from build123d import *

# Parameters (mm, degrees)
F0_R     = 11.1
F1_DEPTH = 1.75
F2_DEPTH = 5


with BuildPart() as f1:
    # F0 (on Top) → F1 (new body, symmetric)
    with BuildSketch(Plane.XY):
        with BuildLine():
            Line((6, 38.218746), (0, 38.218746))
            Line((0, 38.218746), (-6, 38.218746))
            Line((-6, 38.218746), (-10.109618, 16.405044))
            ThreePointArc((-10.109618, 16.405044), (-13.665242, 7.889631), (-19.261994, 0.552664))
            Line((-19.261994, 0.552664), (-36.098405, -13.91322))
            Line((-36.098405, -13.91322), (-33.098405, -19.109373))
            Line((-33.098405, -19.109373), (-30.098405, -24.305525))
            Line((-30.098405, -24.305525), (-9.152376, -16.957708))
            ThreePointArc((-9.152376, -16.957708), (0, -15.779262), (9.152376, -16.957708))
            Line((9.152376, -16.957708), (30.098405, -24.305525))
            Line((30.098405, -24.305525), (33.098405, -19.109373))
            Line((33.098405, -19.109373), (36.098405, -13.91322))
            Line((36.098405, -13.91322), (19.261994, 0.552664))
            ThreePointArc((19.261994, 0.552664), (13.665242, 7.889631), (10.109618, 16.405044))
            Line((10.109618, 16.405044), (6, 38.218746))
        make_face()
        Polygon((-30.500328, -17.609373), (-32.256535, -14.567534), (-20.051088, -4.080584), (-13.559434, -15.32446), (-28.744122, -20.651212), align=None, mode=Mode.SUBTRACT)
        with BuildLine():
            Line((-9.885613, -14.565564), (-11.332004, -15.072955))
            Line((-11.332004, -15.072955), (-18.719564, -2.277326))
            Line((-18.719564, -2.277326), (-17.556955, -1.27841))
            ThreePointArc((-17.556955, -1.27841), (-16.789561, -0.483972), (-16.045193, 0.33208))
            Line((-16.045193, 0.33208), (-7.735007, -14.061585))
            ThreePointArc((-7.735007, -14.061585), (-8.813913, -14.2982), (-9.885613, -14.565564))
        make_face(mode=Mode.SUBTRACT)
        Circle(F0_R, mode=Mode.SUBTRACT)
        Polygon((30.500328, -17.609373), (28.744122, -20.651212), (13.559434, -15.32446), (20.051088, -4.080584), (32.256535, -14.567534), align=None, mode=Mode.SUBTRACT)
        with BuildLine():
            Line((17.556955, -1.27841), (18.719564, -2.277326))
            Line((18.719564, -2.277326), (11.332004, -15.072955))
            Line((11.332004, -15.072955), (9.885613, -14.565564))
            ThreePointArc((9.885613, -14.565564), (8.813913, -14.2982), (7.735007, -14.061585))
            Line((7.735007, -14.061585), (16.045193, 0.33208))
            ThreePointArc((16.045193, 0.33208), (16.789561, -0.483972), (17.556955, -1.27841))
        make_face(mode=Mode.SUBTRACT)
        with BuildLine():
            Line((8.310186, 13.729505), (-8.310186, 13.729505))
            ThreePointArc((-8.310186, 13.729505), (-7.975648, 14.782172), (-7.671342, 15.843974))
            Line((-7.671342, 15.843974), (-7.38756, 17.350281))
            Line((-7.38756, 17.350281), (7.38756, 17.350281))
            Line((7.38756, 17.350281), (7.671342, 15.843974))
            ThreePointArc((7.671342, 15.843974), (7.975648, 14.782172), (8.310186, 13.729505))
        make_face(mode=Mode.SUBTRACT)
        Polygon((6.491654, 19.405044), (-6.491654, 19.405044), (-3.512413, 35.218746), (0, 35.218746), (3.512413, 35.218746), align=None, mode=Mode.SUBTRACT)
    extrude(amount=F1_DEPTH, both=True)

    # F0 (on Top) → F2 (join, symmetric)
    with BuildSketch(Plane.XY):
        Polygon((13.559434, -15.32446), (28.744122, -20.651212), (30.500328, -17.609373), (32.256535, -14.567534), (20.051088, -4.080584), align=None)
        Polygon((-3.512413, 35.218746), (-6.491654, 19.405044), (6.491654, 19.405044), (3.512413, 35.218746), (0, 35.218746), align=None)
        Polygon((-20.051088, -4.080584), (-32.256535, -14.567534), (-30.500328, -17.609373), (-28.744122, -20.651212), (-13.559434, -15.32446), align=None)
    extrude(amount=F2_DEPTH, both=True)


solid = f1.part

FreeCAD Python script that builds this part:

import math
import FreeCAD as App
import Part
import Sketcher

V = App.Vector
Q = App.Units.Quantity


def add_polygon(sketch, points):
    """Adds a closed chain of lines whose ends are joined by coincident constraints."""
    first, n = sketch.GeometryCount, len(points)
    for a, b in zip(points, points[1:] + points[:1]):
        sketch.addGeometry(Part.LineSegment(App.Vector(*a, 0), App.Vector(*b, 0)), False)
    for i in range(n):
        sketch.addConstraint(Sketcher.Constraint("Coincident", first + i, 2, first + (i + 1) % n, 1))

doc = App.newDocument("Part")
body = doc.addObject("PartDesign::Body", "Body")

sketch1 = body.newObject("Sketcher::SketchObject", "Sketch")
sketch1.AttachmentSupport = (doc.getObject("XY_Plane"), [""])
sketch1.MapMode = "FlatFace"
sketch1.addGeometry(Part.LineSegment(V(6, 38.218746, 0), V(-6, 38.218746, 0)), False)
sketch1.addGeometry(Part.LineSegment(V(-6, 38.218746, 0), V(-10.109618, 16.405044, 0)), False)
sketch1.addGeometry(Part.ArcOfCircle(Part.Circle(V(-44.954821, 25.954678, 0), V(0, 0, 1), 36.130094), math.radians(-44.673897), math.radians(-15.326104)), False)
sketch1.addGeometry(Part.LineSegment(V(-19.261994, 0.552664, 0), V(-36.098405, -13.91322, 0)), False)
sketch1.addGeometry(Part.LineSegment(V(-36.098405, -13.91322, 0), V(-33.098405, -19.109373, 0)), False)
sketch1.addGeometry(Part.LineSegment(V(-33.098405, -19.109373, 0), V(-30.098405, -24.305525, 0)), False)
sketch1.addGeometry(Part.LineSegment(V(-30.098405, -24.305525, 0), V(-9.152376, -16.957708, 0)), False)
sketch1.addGeometry(Part.ArcOfCircle(Part.Circle(V(0, -51.909353, 0), V(0, 0, 1), 36.130091), math.radians(75.326102), math.radians(104.673898)), False)
sketch1.addGeometry(Part.LineSegment(V(9.152376, -16.957708, 0), V(30.098405, -24.305525, 0)), False)
sketch1.addGeometry(Part.LineSegment(V(30.098405, -24.305525, 0), V(33.098405, -19.109373, 0)), False)
sketch1.addGeometry(Part.LineSegment(V(33.098405, -19.109373, 0), V(36.098405, -13.91322, 0)), False)
sketch1.addGeometry(Part.LineSegment(V(36.098405, -13.91322, 0), V(19.261994, 0.552664, 0)), False)
sketch1.addGeometry(Part.ArcOfCircle(Part.Circle(V(44.954821, 25.954678, 0), V(0, 0, 1), 36.130094), math.radians(-164.673896), math.radians(-135.326103)), False)
sketch1.addGeometry(Part.LineSegment(V(10.109618, 16.405044, 0), V(6, 38.218746, 0)), False)
add_polygon(sketch1, [(-28.744122, -20.651212), (-30.500328, -17.609373), (-32.256535, -14.567534), (-20.051088, -4.080584), (-13.559434, -15.32446)])
sketch1.addGeometry(Part.ArcOfCircle(Part.Circle(V(0.000035, -51.909547, 0), V(0, 0, 1), 38.630287), math.radians(101.55056), math.radians(104.827162)), False)
sketch1.addGeometry(Part.LineSegment(V(-9.885613, -14.565564, 0), V(-11.332004, -15.072955, 0)), False)
sketch1.addGeometry(Part.LineSegment(V(-11.332004, -15.072955, 0), V(-18.719564, -2.277326, 0)), False)
sketch1.addGeometry(Part.LineSegment(V(-18.719564, -2.277326, 0), V(-17.556955, -1.27841, 0)), False)
sketch1.addGeometry(Part.ArcOfCircle(Part.Circle(V(-44.955902, 25.955686, 0), V(0, 0, 1), 38.631571), math.radians(-44.827114), math.radians(-41.55062)), False)
sketch1.addGeometry(Part.LineSegment(V(-16.045193, 0.33208, 0), V(-7.735007, -14.061585, 0)), False)
sketch1.addGeometry(Part.ArcOfCircle(Part.Circle(V(44.955902, 25.955686, 0), V(0, 0, 1), 38.631571), math.radians(-138.44938), math.radians(-135.172886)), False)
sketch1.addGeometry(Part.LineSegment(V(17.556955, -1.27841, 0), V(18.719564, -2.277326, 0)), False)
sketch1.addGeometry(Part.LineSegment(V(18.719564, -2.277326, 0), V(11.332004, -15.072955, 0)), False)
sketch1.addGeometry(Part.LineSegment(V(11.332004, -15.072955, 0), V(9.885613, -14.565564, 0)), False)
sketch1.addGeometry(Part.ArcOfCircle(Part.Circle(V(-0.000035, -51.909547, 0), V(0, 0, 1), 38.630287), math.radians(75.172838), math.radians(78.44944)), False)
sketch1.addGeometry(Part.LineSegment(V(7.735007, -14.061585, 0), V(16.045193, 0.33208, 0)), False)
add_polygon(sketch1, [(32.256535, -14.567534), (30.500328, -17.609373), (28.744122, -20.651212), (13.559434, -15.32446), (20.051088, -4.080584)])
sketch1.addGeometry(Part.Circle(V(0, 0, 0), V(0, 0, 1), 11.1), False)
sketch1.addGeometry(Part.ArcOfCircle(Part.Circle(V(44.955104, 25.954766, 0), V(0, 0, 1), 38.63039), math.radians(-164.827168), math.radians(-161.550574)), False)
sketch1.addGeometry(Part.LineSegment(V(8.310186, 13.729505, 0), V(-8.310186, 13.729505, 0)), False)
sketch1.addGeometry(Part.ArcOfCircle(Part.Circle(V(-44.955104, 25.954766, 0), V(0, 0, 1), 38.63039), math.radians(-18.449426), math.radians(-15.172832)), False)
sketch1.addGeometry(Part.LineSegment(V(-7.671342, 15.843974, 0), V(-7.38756, 17.350281, 0)), False)
sketch1.addGeometry(Part.LineSegment(V(-7.38756, 17.350281, 0), V(7.38756, 17.350281, 0)), False)
sketch1.addGeometry(Part.LineSegment(V(7.38756, 17.350281, 0), V(7.671342, 15.843974, 0)), False)
add_polygon(sketch1, [(3.512413, 35.218746), (6.491654, 19.405044), (-6.491654, 19.405044), (-3.512413, 35.218746)])
sketch1.addConstraint(Sketcher.Constraint("Coincident", 0, 2, 1, 1))
sketch1.addConstraint(Sketcher.Constraint("Coincident", 1, 2, 2, 2))
sketch1.addConstraint(Sketcher.Constraint("Coincident", 2, 1, 3, 1))
sketch1.addConstraint(Sketcher.Constraint("Coincident", 3, 2, 4, 1))
sketch1.addConstraint(Sketcher.Constraint("Coincident", 4, 2, 5, 1))
sketch1.addConstraint(Sketcher.Constraint("Coincident", 5, 2, 6, 1))
sketch1.addConstraint(Sketcher.Constraint("Coincident", 6, 2, 7, 2))
sketch1.addConstraint(Sketcher.Constraint("Coincident", 7, 1, 8, 1))
sketch1.addConstraint(Sketcher.Constraint("Coincident", 8, 2, 9, 1))
sketch1.addConstraint(Sketcher.Constraint("Coincident", 9, 2, 10, 1))
sketch1.addConstraint(Sketcher.Constraint("Coincident", 10, 2, 11, 1))
sketch1.addConstraint(Sketcher.Constraint("Coincident", 11, 2, 12, 2))
sketch1.addConstraint(Sketcher.Constraint("Coincident", 12, 1, 13, 1))
sketch1.addConstraint(Sketcher.Constraint("Coincident", 13, 2, 0, 1))
sketch1.addConstraint(Sketcher.Constraint("Coincident", 19, 2, 20, 1))
sketch1.addConstraint(Sketcher.Constraint("Coincident", 20, 2, 21, 1))
sketch1.addConstraint(Sketcher.Constraint("Coincident", 21, 2, 22, 1))
sketch1.addConstraint(Sketcher.Constraint("Coincident", 22, 2, 23, 1))
sketch1.addConstraint(Sketcher.Constraint("Coincident", 23, 2, 24, 1))
sketch1.addConstraint(Sketcher.Constraint("Coincident", 24, 2, 19, 1))
sketch1.addConstraint(Sketcher.Constraint("Coincident", 25, 2, 26, 1))
sketch1.addConstraint(Sketcher.Constraint("Coincident", 26, 2, 27, 1))
sketch1.addConstraint(Sketcher.Constraint("Coincident", 27, 2, 28, 1))
sketch1.addConstraint(Sketcher.Constraint("Coincident", 28, 2, 29, 1))
sketch1.addConstraint(Sketcher.Constraint("Coincident", 29, 2, 30, 1))
sketch1.addConstraint(Sketcher.Constraint("Coincident", 30, 2, 25, 1))
sketch1.addConstraint(Sketcher.Constraint("Coincident", 37, 2, 38, 1))
sketch1.addConstraint(Sketcher.Constraint("Coincident", 38, 2, 39, 1))
sketch1.addConstraint(Sketcher.Constraint("Coincident", 39, 2, 40, 1))
sketch1.addConstraint(Sketcher.Constraint("Coincident", 40, 2, 41, 1))
sketch1.addConstraint(Sketcher.Constraint("Coincident", 41, 2, 42, 1))
sketch1.addConstraint(Sketcher.Constraint("Coincident", 42, 2, 37, 1))
sketch1.addConstraint(Sketcher.Constraint("Horizontal", 0))
sketch1.addConstraint(Sketcher.Constraint("Horizontal", 38))
sketch1.addConstraint(Sketcher.Constraint("Horizontal", 41))
sketch1.addConstraint(Sketcher.Constraint("Horizontal", 44))
sketch1.addConstraint(Sketcher.Constraint("Horizontal", 46))
sketch1.addConstraint(Sketcher.Constraint("Coincident", 36, 3, -1, 1))
sketch1.addConstraint(Sketcher.Constraint("PointOnObject", 7, 3, -2))
sketch1.addConstraint(Sketcher.Constraint("Diameter", 36, 22.2))
sketch1.addConstraint(Sketcher.Constraint("DistanceX", 0, 2, 0, 1, 12.0))
sketch1.addConstraint(Sketcher.Constraint("Distance", 4, 6.0))
sketch1.addConstraint(Sketcher.Constraint("Distance", 5, 6.0))
sketch1.addConstraint(Sketcher.Constraint("Distance", 9, 6.0))
sketch1.addConstraint(Sketcher.Constraint("Distance", 10, 6.0))
sketch1.addConstraint(Sketcher.Constraint("DistanceX", 0, 2, -1, 1, 6.0))
sketch1.addConstraint(Sketcher.Constraint("DistanceX", 3, 2, 4, 2, 3.0))
sketch1.addConstraint(Sketcher.Constraint("DistanceX", 4, 2, 5, 2, 3.0))
sketch1.addConstraint(Sketcher.Constraint("DistanceX", 8, 2, 9, 2, 3.0))
sketch1.addConstraint(Sketcher.Constraint("DistanceX", 9, 2, 10, 2, 3.0))
sketch1.addConstraint(Sketcher.Constraint("DistanceY", 12, 1, 43, 2, 3.0))
sketch1.addConstraint(Sketcher.Constraint("DistanceY", 1, 2, 44, 2, 3.0))
sketch1.addConstraint(Sketcher.Constraint("DistanceY", 45, 2, 0, 2, 3.0))
sketch1.addConstraint(Sketcher.Constraint("DistanceY", 4, 2, 14, 2, 1.5))
sketch1.addConstraint(Sketcher.Constraint("DistanceY", 9, 2, 31, 2, 1.5))
sketch1.addConstraint(Sketcher.Constraint("Radius", 7, 36.130091))
sketch1.addConstraint(Sketcher.Constraint("Radius", 23, 38.631571))
sketch1.addConstraint(Sketcher.Constraint("Radius", 25, 38.631571))
sketch1.addConstraint(Sketcher.Constraint("Radius", 37, 38.63039))
sketch1.addConstraint(Sketcher.Constraint("Radius", 39, 38.63039))
sketch1.addConstraint(Sketcher.Constraint("Radius", 2, 36.130094))
sketch1.addConstraint(Sketcher.Constraint("Radius", 12, 36.130094))
sketch1.addConstraint(Sketcher.Constraint("Radius", 19, 38.630287))
sketch1.addConstraint(Sketcher.Constraint("Radius", 29, 38.630287))
sketch1.addConstraint(Sketcher.Constraint("DistanceY", 24, 2, 16, 2, 9.981001))
sketch1.addConstraint(Sketcher.Constraint("DistanceX", 38, 2, 38, 1, 16.620372))
sketch1.addConstraint(Sketcher.Constraint("DistanceX", 41, 1, 41, 2, 14.77512))
sketch1.addConstraint(Sketcher.Constraint("DistanceX", 37, 3, 25, 3, 0.000799))
sketch1.addConstraint(Sketcher.Constraint("DistanceX", 23, 3, 39, 3, 0.000799))
sketch1.addConstraint(Sketcher.Constraint("DistanceY", 3, 2, 2, 3, 39.867898))
sketch1.addConstraint(Sketcher.Constraint("DistanceX", 39, 3, 3, 2, 8.856699))
sketch1.addConstraint(Sketcher.Constraint("DistanceY", 10, 2, 12, 3, 39.867898))
sketch1.addConstraint(Sketcher.Constraint("DistanceY", 12, 1, 0, 2, 21.813702))
sketch1.addConstraint(Sketcher.Constraint("DistanceY", 15, 2, 2, 1, 15.120198))
sketch1.addConstraint(Sketcher.Constraint("DistanceX", 15, 2, 17, 2, 18.697101))
sketch1.addConstraint(Sketcher.Constraint("DistanceX", 2, 1, 23, 2, 3.216801))
sketch1.addConstraint(Sketcher.Constraint("DistanceY", 7, 1, 25, 2, 15.679298))
sketch1.addConstraint(Sketcher.Constraint("DistanceX", 30, 2, 11, 2, 3.216801))
sketch1.addConstraint(Sketcher.Constraint("Distance", 17, 12.983309))
sketch1.addConstraint(Sketcher.Constraint("Distance", 21, 14.77512))
sketch1.addConstraint(Sketcher.Constraint("Distance", 27, 14.77512))
sketch1.addConstraint(Sketcher.Constraint("Distance", 34, 12.983309))
sketch1.addConstraint(Sketcher.Constraint("DistanceX", 44, 2, 44, 1, 12.983308))
sketch1.addConstraint(Sketcher.Constraint("DistanceX", 46, 1, 46, 2, 7.024826))
sketch1.addConstraint(Sketcher.Constraint("DistanceX", 2, 3, -1, 1, 44.954821))
sketch1.addConstraint(Sketcher.Constraint("DistanceY", -1, 1, 2, 3, 25.954678))
sketch1.addConstraint(Sketcher.Constraint("DistanceX", -1, 1, 12, 3, 44.954821))
sketch1.addConstraint(Sketcher.Constraint("DistanceY", -1, 1, 12, 3, 25.954678))
sketch1.addConstraint(Sketcher.Constraint("DistanceY", 6, 2, -1, 1, 16.957708))
sketch1.addConstraint(Sketcher.Constraint("DistanceX", -1, 1, 12, 1, 10.109618))
sketch1.addConstraint(Sketcher.Constraint("DistanceX", 16, 2, -1, 1, 20.051088))
sketch1.addConstraint(Sketcher.Constraint("DistanceY", 17, 2, -1, 1, 15.32446))
sketch1.addConstraint(Sketcher.Constraint("DistanceY", 22, 2, -1, 1, 1.27841))
sketch1.addConstraint(Sketcher.Constraint("DistanceY", -1, 1, 23, 2, 0.33208))
sketch1.addConstraint(Sketcher.Constraint("DistanceY", 25, 2, -1, 1, 1.27841))
sketch1.addConstraint(Sketcher.Constraint("DistanceY", -1, 1, 30, 2, 0.33208))
sketch1.addConstraint(Sketcher.Constraint("DistanceY", 33, 2, -1, 1, 15.32446))
sketch1.addConstraint(Sketcher.Constraint("DistanceX", -1, 1, 34, 2, 20.051088))
sketch1.addConstraint(Sketcher.Constraint("DistanceX", 40, 2, -1, 1, 7.38756))
sketch1.addConstraint(Sketcher.Constraint("DistanceY", -1, 1, 40, 2, 17.350281))
sketch1.addConstraint(Sketcher.Constraint("DistanceY", 7, 3, 2, 3, 77.864031))
sketch1.addConstraint(Sketcher.Constraint("DistanceX", 23, 3, 2, 3, 0.001081))
sketch1.addConstraint(Sketcher.Constraint("DistanceY", 7, 3, 23, 3, 77.865038))
sketch1.addConstraint(Sketcher.Constraint("DistanceX", 12, 3, 25, 3, 0.001081))
sketch1.addConstraint(Sketcher.Constraint("DistanceY", 7, 3, 25, 3, 77.865038))
sketch1.addConstraint(Sketcher.Constraint("DistanceY", 37, 3, 25, 3, 0.000919))
sketch1.addConstraint(Sketcher.Constraint("DistanceY", 39, 3, 23, 3, 0.000919))
sketch1.addConstraint(Sketcher.Constraint("DistanceX", 19, 3, 7, 1, 9.152341))
sketch1.addConstraint(Sketcher.Constraint("DistanceY", 19, 3, 7, 1, 34.951839))
sketch1.addConstraint(Sketcher.Constraint("DistanceX", 7, 1, 8, 2, 20.946029))
sketch1.addConstraint(Sketcher.Constraint("DistanceX", 14, 2, 6, 2, 21.347952))
sketch1.addConstraint(Sketcher.Constraint("DistanceX", 3, 2, 15, 2, 3.84187))
sketch1.addConstraint(Sketcher.Constraint("DistanceY", 18, 2, 14, 2, 3.041839))
sketch1.addConstraint(Sketcher.Constraint("DistanceX", 17, 2, 19, 2, 3.673821))
sketch1.addConstraint(Sketcher.Constraint("DistanceX", 20, 2, 19, 2, 1.446391))
sketch1.addConstraint(Sketcher.Constraint("DistanceY", 20, 2, 19, 2, 0.507391))
sketch1.addConstraint(Sketcher.Constraint("DistanceX", 2, 1, 21, 2, 0.54243))
sketch1.addConstraint(Sketcher.Constraint("DistanceX", 25, 2, 26, 2, 1.162609))
sketch1.addConstraint(Sketcher.Constraint("DistanceY", 26, 2, 11, 2, 2.82999))
sketch1.addConstraint(Sketcher.Constraint("DistanceX", 27, 2, 26, 2, 7.38756))
sketch1.addConstraint(Sketcher.Constraint("DistanceX", 28, 2, 27, 2, 1.446391))
sketch1.addConstraint(Sketcher.Constraint("DistanceY", 27, 2, 28, 2, 0.507391))
sketch1.addConstraint(Sketcher.Constraint("DistanceY", 28, 2, 29, 2, 0.503979))
sketch1.addConstraint(Sketcher.Constraint("DistanceX", 29, 2, 7, 1, 1.417369))
sketch1.addConstraint(Sketcher.Constraint("DistanceY", 32, 2, 31, 2, 3.041839))
sketch1.addConstraint(Sketcher.Constraint("DistanceX", 27, 2, 33, 2, 2.22743))
sketch1.addConstraint(Sketcher.Constraint("DistanceY", 31, 2, 35, 2, 3.041839))
sketch1.addConstraint(Sketcher.Constraint("DistanceX", 35, 2, 10, 2, 3.84187))
sketch1.addConstraint(Sketcher.Constraint("DistanceY", 38, 2, 39, 2, 2.114469))
sketch1.addConstraint(Sketcher.Constraint("DistanceY", 37, 2, 42, 2, 2.114469))
sketch1.addConstraint(Sketcher.Constraint("DistanceX", 43, 2, 42, 2, 1.179688))
sketch1.addConstraint(Sketcher.Constraint("DistanceX", 44, 2, 45, 2, 2.979241))
sketch1.addConstraint(Sketcher.Constraint("Distance", 14, 3.512413))
sketch1.addConstraint(Sketcher.Constraint("Distance", 31, 3.512413))
sketch1.addConstraint(Sketcher.Constraint("Distance", 32, 3.512413))
pad1 = body.newObject("PartDesign::Pad", "Pad")
pad1.Profile = sketch1
pad1.Length = 3.5
pad1.Midplane = True

sketch2 = body.newObject("Sketcher::SketchObject", "Sketch001")
sketch2.AttachmentSupport = (doc.getObject("XY_Plane"), [""])
sketch2.MapMode = "FlatFace"
add_polygon(sketch2, [(13.6, -15.3), (28.7, -20.7), (30.5, -17.6), (32.3, -14.6), (20.1, -4.1)])
add_polygon(sketch2, [(-3.5, 35.2), (-6.5, 19.4), (6.5, 19.4), (3.5, 35.2)])
add_polygon(sketch2, [(-20.1, -4.1), (-32.3, -14.6), (-30.5, -17.6), (-28.7, -20.7), (-13.6, -15.3)])
sketch2.addConstraint(Sketcher.Constraint("Horizontal", 6))
sketch2.addConstraint(Sketcher.Constraint("Horizontal", 8))
sketch2.addConstraint(Sketcher.Constraint("Symmetric", 2, 2, 9, 2, -2))
sketch2.addConstraint(Sketcher.Constraint("Symmetric", 1, 2, 10, 2, -2))
sketch2.addConstraint(Sketcher.Constraint("Symmetric", 0, 2, 11, 2, -2))
sketch2.addConstraint(Sketcher.Constraint("Symmetric", 4, 2, 12, 2, -2))
sketch2.addConstraint(Sketcher.Constraint("Symmetric", 3, 2, 13, 2, -2))
sketch2.addConstraint(Sketcher.Constraint("Parallel", 1, 2))
sketch2.addConstraint(Sketcher.Constraint("Parallel", 2, 4))
sketch2.addConstraint(Sketcher.Constraint("Equal", 1, 2))
sketch2.addConstraint(Sketcher.Constraint("Equal", 0, 3))
sketch2.addConstraint(Sketcher.Constraint("Equal", 3, 5))
sketch2.addConstraint(Sketcher.Constraint("Equal", 5, 7))
sketch2.addConstraint(Sketcher.Constraint("Angle", 1, Q("60.000008 deg")))
sketch2.addConstraint(Sketcher.Constraint("DistanceX", 4, 2, 2, 2, 18.697101))
sketch2.addConstraint(Sketcher.Constraint("DistanceX", 8, 2, 3, 2, 23.563501))
sketch2.addConstraint(Sketcher.Constraint("Distance", 4, 12.983309))
sketch2.addConstraint(Sketcher.Constraint("DistanceX", 6, 1, 6, 2, 12.983308))
sketch2.addConstraint(Sketcher.Constraint("DistanceX", 8, 2, 8, 1, 7.024826))
sketch2.addConstraint(Sketcher.Constraint("DistanceX", -1, 1, 3, 2, 20.051088))
sketch2.addConstraint(Sketcher.Constraint("DistanceY", 4, 2, -1, 1, 15.32446))
sketch2.addConstraint(Sketcher.Constraint("DistanceY", 0, 2, 1, 2, 3.041839))
sketch2.addConstraint(Sketcher.Constraint("DistanceY", 3, 2, 7, 2, 39.29933))
pad2 = body.newObject("PartDesign::Pad", "Pad001")
pad2.Profile = sketch2
pad2.Length = 10
pad2.Midplane = True

doc.recompute()
